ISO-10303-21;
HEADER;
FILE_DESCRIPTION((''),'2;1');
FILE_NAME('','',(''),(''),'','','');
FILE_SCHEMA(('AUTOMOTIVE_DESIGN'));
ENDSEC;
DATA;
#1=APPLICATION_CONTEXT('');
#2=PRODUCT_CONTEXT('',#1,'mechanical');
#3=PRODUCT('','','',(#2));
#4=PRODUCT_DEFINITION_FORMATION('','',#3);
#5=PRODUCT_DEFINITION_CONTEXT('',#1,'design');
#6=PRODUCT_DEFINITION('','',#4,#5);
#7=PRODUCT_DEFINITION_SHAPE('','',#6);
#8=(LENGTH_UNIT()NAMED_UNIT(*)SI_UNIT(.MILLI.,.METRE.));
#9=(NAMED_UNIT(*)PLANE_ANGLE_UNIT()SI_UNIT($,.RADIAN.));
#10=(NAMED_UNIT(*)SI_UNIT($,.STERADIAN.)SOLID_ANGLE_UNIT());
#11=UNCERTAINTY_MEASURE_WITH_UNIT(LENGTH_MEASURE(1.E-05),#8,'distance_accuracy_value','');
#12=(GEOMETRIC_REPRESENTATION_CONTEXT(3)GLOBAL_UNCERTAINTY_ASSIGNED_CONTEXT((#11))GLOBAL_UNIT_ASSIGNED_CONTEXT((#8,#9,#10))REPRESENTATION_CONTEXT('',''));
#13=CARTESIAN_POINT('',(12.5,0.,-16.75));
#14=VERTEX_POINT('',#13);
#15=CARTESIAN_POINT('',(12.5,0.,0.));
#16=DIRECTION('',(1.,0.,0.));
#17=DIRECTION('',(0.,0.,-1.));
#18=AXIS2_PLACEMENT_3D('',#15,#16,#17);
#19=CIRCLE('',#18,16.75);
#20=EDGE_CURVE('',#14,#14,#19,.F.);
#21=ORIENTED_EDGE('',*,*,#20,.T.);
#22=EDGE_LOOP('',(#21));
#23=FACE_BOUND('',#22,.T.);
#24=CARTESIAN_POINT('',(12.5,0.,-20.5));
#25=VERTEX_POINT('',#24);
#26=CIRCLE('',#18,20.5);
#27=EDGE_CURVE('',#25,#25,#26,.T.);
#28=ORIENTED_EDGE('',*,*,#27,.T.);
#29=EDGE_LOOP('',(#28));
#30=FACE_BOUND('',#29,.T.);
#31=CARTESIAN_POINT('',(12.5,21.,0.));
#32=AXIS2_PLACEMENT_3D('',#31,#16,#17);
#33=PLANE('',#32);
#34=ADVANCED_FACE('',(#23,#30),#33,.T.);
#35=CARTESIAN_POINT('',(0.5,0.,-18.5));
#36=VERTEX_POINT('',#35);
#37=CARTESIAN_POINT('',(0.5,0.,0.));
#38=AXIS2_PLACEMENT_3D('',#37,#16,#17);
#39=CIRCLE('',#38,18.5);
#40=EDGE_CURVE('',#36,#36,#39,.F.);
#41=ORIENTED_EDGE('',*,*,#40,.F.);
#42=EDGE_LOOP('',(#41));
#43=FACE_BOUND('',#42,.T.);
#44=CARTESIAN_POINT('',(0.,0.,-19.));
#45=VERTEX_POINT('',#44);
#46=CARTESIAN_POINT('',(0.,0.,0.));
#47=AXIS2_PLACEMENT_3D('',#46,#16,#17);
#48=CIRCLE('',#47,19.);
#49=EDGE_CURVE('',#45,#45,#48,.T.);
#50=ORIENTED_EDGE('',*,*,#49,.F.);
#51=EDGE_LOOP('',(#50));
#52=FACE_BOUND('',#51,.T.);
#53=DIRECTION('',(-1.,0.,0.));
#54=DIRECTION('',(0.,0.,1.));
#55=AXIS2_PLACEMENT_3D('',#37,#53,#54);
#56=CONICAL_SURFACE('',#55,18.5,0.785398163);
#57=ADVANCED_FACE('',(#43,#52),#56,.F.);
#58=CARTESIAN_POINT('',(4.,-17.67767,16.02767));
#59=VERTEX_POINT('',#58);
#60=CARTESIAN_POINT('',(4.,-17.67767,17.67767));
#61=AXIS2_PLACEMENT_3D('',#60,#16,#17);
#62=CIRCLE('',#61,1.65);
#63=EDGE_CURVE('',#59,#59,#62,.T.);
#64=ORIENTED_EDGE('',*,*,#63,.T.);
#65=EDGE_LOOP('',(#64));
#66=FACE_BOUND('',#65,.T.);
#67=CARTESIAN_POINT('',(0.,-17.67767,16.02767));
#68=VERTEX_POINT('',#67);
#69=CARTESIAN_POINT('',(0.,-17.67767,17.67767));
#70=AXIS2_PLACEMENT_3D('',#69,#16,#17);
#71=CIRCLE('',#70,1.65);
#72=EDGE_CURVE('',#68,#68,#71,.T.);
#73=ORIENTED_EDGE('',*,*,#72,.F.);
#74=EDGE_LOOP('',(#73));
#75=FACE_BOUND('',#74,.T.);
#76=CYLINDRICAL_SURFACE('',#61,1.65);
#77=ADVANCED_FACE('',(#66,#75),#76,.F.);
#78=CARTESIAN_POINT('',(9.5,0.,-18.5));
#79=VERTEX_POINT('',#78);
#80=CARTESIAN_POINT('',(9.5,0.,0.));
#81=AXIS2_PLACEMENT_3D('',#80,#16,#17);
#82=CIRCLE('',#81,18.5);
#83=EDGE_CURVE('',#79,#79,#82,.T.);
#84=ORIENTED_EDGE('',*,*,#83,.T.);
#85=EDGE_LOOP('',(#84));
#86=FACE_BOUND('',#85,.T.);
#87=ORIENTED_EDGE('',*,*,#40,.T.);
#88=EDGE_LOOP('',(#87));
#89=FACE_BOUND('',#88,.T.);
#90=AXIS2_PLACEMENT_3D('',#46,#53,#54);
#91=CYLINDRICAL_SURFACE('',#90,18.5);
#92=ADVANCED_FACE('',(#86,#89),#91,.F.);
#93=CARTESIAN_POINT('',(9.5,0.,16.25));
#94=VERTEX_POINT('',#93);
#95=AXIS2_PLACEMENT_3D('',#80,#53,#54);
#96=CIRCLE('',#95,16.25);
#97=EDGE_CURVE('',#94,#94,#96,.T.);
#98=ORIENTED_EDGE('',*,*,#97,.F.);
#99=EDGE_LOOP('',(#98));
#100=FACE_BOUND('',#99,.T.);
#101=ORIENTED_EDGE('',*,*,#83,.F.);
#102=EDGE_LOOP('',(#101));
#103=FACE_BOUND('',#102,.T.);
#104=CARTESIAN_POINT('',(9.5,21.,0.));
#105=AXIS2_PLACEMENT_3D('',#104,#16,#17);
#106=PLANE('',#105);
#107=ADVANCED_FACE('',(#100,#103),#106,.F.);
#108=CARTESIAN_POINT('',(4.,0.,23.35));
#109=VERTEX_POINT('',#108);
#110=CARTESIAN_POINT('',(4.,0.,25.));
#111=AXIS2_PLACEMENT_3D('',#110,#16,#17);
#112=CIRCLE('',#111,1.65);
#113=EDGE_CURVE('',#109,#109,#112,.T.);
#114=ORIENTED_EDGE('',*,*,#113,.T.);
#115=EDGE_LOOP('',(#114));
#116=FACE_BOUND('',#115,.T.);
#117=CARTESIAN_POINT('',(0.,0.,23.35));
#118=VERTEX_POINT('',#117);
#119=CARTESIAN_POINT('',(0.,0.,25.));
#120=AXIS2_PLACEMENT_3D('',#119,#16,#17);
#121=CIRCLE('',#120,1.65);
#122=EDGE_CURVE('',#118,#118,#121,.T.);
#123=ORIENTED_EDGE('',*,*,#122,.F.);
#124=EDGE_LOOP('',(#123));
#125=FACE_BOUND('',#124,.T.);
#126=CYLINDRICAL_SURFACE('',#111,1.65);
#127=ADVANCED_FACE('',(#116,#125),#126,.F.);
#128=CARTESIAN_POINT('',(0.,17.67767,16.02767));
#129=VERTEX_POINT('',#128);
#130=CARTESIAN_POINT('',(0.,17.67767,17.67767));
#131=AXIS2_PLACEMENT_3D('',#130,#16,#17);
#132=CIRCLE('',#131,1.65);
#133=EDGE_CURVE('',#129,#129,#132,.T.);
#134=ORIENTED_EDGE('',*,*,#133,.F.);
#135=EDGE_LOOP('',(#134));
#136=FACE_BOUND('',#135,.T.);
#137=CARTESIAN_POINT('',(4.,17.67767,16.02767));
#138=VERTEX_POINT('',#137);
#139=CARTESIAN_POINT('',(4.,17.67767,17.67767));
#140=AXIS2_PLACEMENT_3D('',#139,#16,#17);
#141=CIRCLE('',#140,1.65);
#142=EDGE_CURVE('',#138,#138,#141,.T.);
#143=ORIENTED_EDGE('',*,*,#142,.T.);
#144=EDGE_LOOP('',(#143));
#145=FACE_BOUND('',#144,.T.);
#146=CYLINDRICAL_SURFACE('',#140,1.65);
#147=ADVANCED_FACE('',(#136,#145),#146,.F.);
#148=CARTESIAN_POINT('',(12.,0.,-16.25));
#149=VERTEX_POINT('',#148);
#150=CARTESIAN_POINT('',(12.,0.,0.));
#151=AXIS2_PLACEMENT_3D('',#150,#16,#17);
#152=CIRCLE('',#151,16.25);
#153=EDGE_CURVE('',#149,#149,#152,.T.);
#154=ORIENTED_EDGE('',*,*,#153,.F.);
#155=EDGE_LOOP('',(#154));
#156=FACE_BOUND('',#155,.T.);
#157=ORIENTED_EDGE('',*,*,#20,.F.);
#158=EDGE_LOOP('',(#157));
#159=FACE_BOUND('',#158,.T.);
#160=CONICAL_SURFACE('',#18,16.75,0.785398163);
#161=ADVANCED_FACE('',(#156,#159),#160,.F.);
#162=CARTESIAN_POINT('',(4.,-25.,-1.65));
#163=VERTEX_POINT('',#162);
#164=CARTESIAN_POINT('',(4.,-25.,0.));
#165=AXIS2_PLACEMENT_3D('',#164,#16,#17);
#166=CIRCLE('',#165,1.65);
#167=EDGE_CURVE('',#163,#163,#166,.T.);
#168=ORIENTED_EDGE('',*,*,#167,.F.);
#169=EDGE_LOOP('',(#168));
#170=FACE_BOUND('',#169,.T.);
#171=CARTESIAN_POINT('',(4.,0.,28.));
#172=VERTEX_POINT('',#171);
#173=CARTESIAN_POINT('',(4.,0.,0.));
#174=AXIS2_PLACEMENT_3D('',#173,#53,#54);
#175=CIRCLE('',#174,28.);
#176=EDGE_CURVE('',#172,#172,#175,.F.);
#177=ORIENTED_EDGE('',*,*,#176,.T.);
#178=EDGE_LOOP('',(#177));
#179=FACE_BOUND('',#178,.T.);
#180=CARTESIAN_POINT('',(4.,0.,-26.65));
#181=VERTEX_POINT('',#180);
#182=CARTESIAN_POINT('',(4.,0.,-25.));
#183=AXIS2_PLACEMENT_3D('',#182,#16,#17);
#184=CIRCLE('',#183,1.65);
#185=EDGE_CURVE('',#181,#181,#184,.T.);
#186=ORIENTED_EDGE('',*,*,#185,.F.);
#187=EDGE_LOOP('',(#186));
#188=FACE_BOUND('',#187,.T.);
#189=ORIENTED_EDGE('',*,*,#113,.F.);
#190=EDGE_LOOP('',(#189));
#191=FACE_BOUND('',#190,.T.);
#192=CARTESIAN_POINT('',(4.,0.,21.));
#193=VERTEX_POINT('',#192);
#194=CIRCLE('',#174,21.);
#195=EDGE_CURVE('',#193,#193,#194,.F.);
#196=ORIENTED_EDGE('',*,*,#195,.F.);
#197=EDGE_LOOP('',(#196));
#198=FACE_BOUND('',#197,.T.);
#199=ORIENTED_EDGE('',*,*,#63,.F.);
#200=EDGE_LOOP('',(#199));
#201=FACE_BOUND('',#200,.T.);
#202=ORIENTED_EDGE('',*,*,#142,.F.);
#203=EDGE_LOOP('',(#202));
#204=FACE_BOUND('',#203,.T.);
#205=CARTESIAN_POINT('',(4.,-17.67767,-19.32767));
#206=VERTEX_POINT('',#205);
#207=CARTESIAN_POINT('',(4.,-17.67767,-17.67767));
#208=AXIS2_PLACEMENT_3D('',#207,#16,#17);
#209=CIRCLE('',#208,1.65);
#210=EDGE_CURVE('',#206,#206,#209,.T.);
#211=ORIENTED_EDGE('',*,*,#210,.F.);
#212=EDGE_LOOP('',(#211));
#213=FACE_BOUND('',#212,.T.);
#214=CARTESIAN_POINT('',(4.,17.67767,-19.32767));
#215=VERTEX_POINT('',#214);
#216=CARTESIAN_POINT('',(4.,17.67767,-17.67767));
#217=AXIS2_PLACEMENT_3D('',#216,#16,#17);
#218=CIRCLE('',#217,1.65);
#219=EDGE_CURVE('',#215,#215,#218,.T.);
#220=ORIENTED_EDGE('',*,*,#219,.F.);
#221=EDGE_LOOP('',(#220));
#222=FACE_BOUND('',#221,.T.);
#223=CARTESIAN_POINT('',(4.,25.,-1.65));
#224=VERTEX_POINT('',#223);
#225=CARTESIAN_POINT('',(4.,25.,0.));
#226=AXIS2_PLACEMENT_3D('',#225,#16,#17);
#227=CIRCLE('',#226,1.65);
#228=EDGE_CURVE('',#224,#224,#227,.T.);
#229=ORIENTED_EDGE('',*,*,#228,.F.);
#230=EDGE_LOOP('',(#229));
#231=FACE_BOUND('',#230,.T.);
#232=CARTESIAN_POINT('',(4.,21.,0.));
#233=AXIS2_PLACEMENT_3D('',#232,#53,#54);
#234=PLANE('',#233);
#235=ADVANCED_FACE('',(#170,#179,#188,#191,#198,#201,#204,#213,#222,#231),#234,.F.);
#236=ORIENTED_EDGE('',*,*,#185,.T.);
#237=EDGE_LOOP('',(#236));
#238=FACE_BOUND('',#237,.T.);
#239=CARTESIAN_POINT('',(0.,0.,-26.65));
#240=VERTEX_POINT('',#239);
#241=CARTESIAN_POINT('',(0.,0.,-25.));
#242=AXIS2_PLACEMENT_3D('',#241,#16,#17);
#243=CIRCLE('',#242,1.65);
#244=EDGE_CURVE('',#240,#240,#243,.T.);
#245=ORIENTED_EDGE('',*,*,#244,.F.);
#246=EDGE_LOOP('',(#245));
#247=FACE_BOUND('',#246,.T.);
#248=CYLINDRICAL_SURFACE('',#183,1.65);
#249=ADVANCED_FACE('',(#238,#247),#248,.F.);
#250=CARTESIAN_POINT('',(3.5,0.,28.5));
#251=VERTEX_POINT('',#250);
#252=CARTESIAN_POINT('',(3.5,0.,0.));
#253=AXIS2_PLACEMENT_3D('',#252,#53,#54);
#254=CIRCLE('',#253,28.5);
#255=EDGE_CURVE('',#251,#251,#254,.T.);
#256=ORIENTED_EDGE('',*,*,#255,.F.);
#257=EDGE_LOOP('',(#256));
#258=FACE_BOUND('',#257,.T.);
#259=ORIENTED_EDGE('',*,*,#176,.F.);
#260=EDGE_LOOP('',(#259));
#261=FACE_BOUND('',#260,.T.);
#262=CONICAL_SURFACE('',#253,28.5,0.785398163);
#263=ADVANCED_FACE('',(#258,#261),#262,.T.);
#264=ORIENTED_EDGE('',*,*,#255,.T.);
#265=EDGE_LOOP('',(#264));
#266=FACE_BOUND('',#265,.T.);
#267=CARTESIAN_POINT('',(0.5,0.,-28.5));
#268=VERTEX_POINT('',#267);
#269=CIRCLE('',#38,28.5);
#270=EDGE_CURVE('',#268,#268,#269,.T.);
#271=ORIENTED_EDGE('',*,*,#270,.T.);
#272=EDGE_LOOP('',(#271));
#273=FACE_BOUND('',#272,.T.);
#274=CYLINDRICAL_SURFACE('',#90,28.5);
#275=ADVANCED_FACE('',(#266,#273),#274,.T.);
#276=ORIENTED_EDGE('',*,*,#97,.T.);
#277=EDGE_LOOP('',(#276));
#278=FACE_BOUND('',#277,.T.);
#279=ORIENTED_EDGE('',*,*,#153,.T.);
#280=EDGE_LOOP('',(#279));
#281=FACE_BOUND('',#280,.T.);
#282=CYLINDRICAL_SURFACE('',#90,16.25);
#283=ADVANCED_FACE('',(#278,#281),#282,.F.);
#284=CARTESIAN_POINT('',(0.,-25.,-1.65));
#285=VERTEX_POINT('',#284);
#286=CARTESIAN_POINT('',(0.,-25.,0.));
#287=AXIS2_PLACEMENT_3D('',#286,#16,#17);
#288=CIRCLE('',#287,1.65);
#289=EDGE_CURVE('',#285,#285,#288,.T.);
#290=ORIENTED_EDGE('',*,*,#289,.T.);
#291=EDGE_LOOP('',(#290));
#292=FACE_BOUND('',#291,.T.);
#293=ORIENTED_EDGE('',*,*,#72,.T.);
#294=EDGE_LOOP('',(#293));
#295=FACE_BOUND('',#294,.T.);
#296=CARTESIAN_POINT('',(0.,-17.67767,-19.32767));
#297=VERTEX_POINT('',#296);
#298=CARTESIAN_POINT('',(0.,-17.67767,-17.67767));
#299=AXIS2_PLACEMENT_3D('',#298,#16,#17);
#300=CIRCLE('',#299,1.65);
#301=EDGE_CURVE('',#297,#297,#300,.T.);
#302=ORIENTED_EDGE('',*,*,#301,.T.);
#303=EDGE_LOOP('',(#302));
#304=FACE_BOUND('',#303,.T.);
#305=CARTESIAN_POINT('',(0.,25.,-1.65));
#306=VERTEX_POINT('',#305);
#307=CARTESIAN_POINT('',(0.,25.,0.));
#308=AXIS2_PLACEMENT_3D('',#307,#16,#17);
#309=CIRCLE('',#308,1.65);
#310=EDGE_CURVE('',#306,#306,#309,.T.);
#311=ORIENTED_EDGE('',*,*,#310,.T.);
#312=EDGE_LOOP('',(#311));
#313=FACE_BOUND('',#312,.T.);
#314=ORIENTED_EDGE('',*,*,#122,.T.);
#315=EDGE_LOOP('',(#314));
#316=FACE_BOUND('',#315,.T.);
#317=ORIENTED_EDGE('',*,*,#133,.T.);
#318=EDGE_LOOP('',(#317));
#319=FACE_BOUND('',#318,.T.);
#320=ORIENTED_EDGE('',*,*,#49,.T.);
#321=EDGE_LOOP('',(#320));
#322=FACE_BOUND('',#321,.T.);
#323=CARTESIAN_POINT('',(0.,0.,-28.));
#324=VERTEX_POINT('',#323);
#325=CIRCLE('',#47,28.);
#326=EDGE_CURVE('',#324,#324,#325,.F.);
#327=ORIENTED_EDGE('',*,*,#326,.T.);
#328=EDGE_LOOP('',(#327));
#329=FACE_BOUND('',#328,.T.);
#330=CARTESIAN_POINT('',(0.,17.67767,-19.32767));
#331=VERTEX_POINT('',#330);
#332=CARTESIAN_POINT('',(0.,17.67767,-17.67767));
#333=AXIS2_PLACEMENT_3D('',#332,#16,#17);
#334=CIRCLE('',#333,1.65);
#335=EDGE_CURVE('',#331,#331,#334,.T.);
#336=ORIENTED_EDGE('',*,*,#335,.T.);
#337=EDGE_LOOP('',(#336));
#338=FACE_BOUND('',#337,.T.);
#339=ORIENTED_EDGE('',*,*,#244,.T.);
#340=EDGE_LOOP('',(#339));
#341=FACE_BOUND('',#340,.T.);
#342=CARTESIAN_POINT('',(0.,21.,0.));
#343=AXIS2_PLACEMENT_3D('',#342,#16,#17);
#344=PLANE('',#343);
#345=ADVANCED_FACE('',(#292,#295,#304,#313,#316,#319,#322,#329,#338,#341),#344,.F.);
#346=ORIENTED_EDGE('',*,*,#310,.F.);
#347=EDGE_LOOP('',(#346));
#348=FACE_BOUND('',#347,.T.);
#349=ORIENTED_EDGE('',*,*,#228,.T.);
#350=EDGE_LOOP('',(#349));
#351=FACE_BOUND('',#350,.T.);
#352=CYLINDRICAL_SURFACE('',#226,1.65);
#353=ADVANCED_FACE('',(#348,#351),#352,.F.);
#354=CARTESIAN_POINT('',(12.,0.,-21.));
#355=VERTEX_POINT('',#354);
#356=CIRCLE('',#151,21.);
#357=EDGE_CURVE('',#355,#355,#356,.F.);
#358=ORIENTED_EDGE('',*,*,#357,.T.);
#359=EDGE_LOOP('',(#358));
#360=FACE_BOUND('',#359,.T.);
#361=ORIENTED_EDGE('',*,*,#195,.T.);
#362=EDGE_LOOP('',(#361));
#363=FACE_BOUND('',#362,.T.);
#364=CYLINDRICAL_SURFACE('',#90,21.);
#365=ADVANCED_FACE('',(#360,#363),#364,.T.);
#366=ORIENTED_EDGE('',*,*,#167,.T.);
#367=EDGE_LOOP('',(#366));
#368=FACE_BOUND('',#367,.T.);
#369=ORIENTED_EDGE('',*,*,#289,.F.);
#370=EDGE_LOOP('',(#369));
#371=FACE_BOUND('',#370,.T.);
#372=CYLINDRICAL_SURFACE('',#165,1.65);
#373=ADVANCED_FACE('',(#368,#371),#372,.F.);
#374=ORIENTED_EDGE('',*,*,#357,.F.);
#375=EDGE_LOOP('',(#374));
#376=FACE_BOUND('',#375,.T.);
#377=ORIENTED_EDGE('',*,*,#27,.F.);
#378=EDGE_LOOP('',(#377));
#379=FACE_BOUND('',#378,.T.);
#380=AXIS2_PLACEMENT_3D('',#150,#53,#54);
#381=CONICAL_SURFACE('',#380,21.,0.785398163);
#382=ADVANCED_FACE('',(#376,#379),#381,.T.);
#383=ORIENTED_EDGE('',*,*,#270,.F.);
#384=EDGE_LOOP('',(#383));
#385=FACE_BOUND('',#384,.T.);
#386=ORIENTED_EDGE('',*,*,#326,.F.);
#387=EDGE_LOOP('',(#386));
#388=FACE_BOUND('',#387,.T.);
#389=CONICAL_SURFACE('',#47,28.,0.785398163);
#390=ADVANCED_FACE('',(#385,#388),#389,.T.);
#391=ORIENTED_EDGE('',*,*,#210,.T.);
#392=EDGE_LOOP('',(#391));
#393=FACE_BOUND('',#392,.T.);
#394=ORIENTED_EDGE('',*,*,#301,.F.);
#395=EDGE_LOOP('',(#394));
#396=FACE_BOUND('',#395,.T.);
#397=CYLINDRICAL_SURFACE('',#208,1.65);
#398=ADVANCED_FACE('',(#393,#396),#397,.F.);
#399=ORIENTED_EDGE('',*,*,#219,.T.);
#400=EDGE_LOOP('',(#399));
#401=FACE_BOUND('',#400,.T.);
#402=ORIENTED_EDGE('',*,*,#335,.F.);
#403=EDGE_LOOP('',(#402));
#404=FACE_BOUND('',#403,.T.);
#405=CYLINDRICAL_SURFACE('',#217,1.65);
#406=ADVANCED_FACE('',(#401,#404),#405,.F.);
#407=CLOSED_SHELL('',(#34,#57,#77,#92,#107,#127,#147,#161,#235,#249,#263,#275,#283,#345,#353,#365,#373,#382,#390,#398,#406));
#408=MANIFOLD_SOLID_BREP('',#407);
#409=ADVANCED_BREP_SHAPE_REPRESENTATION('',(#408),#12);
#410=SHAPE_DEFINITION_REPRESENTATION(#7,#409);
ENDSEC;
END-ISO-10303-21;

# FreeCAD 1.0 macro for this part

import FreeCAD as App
import Part
import Sketcher

V = App.Vector
Q = App.Units.Quantity


def edges_at(feature, points):
    """Names of the edges that pass closest to the given points."""
    edges = feature.Shape.Edges
    near = lambda p: min(range(len(edges)), key=lambda i: edges[i].distToShape(Part.Vertex(*p))[0])
    return sorted({f"Edge{near(p) + 1}" for p in points})

doc = App.newDocument("Part")
body = doc.addObject("PartDesign::Body", "Body")

# Sketch on XY plane
sketch1 = body.newObject("Sketcher::SketchObject", "Sketch")
sketch1.AttachmentSupport = (doc.getObject("XY_Plane"), [""])
sketch1.MapMode = "FlatFace"
sketch1.addGeometry([
    Part.LineSegment(V(0, 28.5, 0), V(0, 18.5, 0)),  # 0
    Part.LineSegment(V(0, 18.5, 0), V(9.5, 18.5, 0)),  # 1
    Part.LineSegment(V(9.5, 18.5, 0), V(9.5, 16.2, 0)),  # 2
    Part.LineSegment(V(9.5, 16.2, 0), V(12.5, 16.2, 0)),  # 3
    Part.LineSegment(V(12.5, 16.2, 0), V(12.5, 21, 0)),  # 4
    Part.LineSegment(V(12.5, 21, 0), V(4, 21, 0)),  # 5
    Part.LineSegment(V(4, 21, 0), V(4, 28.5, 0)),  # 6
    Part.LineSegment(V(4, 28.5, 0), V(0, 28.5, 0)),  # 7
], False)
sketch1.addConstraint([
    Sketcher.Constraint("Coincident", 0, 2, 1, 1),
    Sketcher.Constraint("Coincident", 1, 2, 2, 1),
    Sketcher.Constraint("Coincident", 2, 2, 3, 1),
    Sketcher.Constraint("Coincident", 3, 2, 4, 1),
    Sketcher.Constraint("Coincident", 4, 2, 5, 1),
    Sketcher.Constraint("Coincident", 5, 2, 6, 1),
    Sketcher.Constraint("Coincident", 6, 2, 7, 1),
    Sketcher.Constraint("Coincident", 7, 2, 0, 1),
    Sketcher.Constraint("Vertical", 0),
    Sketcher.Constraint("Horizontal", 1),
    Sketcher.Constraint("Vertical", 2),
    Sketcher.Constraint("Horizontal", 3),
    Sketcher.Constraint("Vertical", 4),
    Sketcher.Constraint("Horizontal", 5),
    Sketcher.Constraint("Vertical", 6),
    Sketcher.Constraint("Horizontal", 7),
    Sketcher.Constraint("PointOnObject", 0, 2, -2),
    Sketcher.Constraint("DistanceX", 3, 1, 3, 2, Q("3 mm")),
    Sketcher.Constraint("DistanceX", 7, 2, 7, 1, Q("4 mm")),
    Sketcher.Constraint("DistanceY", 0, 2, 0, 1, Q("10 mm")),
    Sketcher.Constraint("DistanceX", 1, 1, 1, 2, Q("9.5 mm")),
    Sketcher.Constraint("DistanceY", 6, 1, 6, 2, Q("7.5 mm")),
    Sketcher.Constraint("DistanceY", -1, 1, 4, 2, Q("21 mm")),
    Sketcher.Constraint("DistanceY", 2, 2, 2, 1, Q("2.25 mm")),
])
revolution = body.newObject("PartDesign::Revolution", "Revolution")
revolution.Profile = sketch1
revolution.ReferenceAxis = (sketch1, ["H_Axis"])
revolution.Angle = 360
doc.recompute()

chamfer = body.newObject("PartDesign::Chamfer", "Chamfer")
chamfer.Base = (revolution, edges_at(revolution, [
    (0, 0, -18.5),
    (0, 0, -28.5),
    (4, 0, -28.5),
    (12.5, 0, -16.25),
    (12.5, 0, -21),
]))
chamfer.Size = 0.5

# Sketch on YZ plane
sketch2 = body.newObject("Sketcher::SketchObject", "Sketch001")
sketch2.AttachmentSupport = (doc.getObject("YZ_Plane"), [""])
sketch2.MapMode = "FlatFace"
sketch2.AttachmentOffset = App.Placement(V(0, 0, 4), App.Rotation())
sketch2.addGeometry(Part.Circle(V(25, 0, 0), V(0, 0, 1), 1.6), False)
sketch2.addConstraint([
    Sketcher.Constraint("PointOnObject", 0, 3, -1),
    Sketcher.Constraint("Diameter", 0, Q("3.3 mm")),
    Sketcher.Constraint("DistanceX", -1, 1, 0, 3, Q("25 mm")),
])
doc.recompute()
hole = body.newObject("PartDesign::Hole", "Hole")
hole.Profile = sketch2
hole.ThreadType = "None"
hole.Diameter = 3.3
hole.DepthType = "ThroughAll"
doc.recompute()

polarpattern = body.newObject("PartDesign::PolarPattern", "PolarPattern")
polarpattern.Originals = [hole]
polarpattern.Axis = (doc.getObject("X_Axis"), [""])
polarpattern.Angle = 360
polarpattern.Occurrences = 8
body.Tip = polarpattern

doc.recompute()
